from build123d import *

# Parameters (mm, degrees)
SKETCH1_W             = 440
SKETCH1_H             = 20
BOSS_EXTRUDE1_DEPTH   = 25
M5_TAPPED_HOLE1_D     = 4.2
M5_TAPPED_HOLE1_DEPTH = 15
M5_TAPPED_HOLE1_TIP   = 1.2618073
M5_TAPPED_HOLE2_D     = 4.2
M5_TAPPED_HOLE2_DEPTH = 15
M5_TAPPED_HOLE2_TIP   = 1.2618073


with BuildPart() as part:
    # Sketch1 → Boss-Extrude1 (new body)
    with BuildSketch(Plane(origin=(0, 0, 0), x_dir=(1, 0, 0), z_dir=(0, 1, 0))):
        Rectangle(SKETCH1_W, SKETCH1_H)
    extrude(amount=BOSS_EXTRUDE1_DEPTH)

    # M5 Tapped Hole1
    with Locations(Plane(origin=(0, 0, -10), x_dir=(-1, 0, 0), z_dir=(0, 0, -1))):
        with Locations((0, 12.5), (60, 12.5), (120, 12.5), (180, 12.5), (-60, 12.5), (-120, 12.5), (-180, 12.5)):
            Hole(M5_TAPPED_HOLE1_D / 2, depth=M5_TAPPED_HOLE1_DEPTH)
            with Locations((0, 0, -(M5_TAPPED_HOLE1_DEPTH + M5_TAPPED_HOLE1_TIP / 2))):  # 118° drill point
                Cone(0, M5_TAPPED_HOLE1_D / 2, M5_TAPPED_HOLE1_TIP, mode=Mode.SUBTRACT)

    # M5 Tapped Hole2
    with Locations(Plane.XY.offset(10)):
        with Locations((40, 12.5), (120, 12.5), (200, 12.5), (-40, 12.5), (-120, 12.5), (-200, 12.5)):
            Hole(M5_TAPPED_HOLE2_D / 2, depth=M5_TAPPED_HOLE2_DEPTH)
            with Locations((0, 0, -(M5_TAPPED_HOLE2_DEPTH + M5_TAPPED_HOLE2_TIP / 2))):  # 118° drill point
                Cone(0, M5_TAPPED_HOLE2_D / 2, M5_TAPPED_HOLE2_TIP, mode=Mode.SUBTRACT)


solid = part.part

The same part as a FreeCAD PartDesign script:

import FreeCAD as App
import Part
import Sketcher
from FreeCAD import Vector

doc = App.newDocument("Part")
body = doc.addObject("PartDesign::Body", "Body")

# Sketch on XZ plane
sketch1 = body.newObject("Sketcher::SketchObject", "Sketch")
sketch1.AttachmentSupport = (doc.getObject("XZ_Plane"), [""])
sketch1.MapMode = "FlatFace"
sketch1.addGeometry(Part.LineSegment(Vector(-220, -10, 0), Vector(-220, 10, 0)), False)
sketch1.addGeometry(Part.LineSegment(Vector(-220, 10, 0), Vector(220, 10, 0)), False)
sketch1.addGeometry(Part.LineSegment(Vector(220, 10, 0), Vector(220, -10, 0)), False)
sketch1.addGeometry(Part.LineSegment(Vector(220, -10, 0), Vector(-220, -10, 0)), False)
sketch1.addConstraint(Sketcher.Constraint("Coincident", 0, 2, 1, 1))
sketch1.addConstraint(Sketcher.Constraint("Coincident", 1, 2, 2, 1))
sketch1.addConstraint(Sketcher.Constraint("Coincident", 2, 2, 3, 1))
sketch1.addConstraint(Sketcher.Constraint("Coincident", 3, 2, 0, 1))
sketch1.addConstraint(Sketcher.Constraint("Vertical", 0))
sketch1.addConstraint(Sketcher.Constraint("Horizontal", 1))
sketch1.addConstraint(Sketcher.Constraint("Vertical", 2))
sketch1.addConstraint(Sketcher.Constraint("Horizontal", 3))
sketch1.addConstraint(Sketcher.Constraint("Symmetric", 0, 2, 2, 2, -1, 1))
sketch1.addConstraint(Sketcher.Constraint("DistanceX", 1, 1, 1, 2, 440.0))
sketch1.addConstraint(Sketcher.Constraint("DistanceY", 0, 1, 0, 2, 20.0))
pad1 = body.newObject("PartDesign::Pad", "Pad")
pad1.Profile = sketch1
pad1.Length = 25
pad1.Reversed = True

# Sketch on XY plane
sketch2 = body.newObject("Sketcher::SketchObject", "Sketch001")
sketch2.AttachmentSupport = (doc.getObject("XY_Plane"), [""])
sketch2.MapMode = "FlatFace"
sketch2.AttachmentOffset = App.Placement(Vector(0, 0, -10), App.Rotation())
sketch2.addGeometry(Part.Circle(Vector(0, 12.5, 0), Vector(0, 0, 1), 2.1), False)
sketch2.addGeometry(Part.Circle(Vector(-60, 12.5, 0), Vector(0, 0, 1), 2.1), False)
sketch2.addGeometry(Part.Circle(Vector(-120, 12.5, 0), Vector(0, 0, 1), 2.1), False)
sketch2.addGeometry(Part.Circle(Vector(-180, 12.5, 0), Vector(0, 0, 1), 2.1), False)
sketch2.addGeometry(Part.Circle(Vector(60, 12.5, 0), Vector(0, 0, 1), 2.1), False)
sketch2.addGeometry(Part.Circle(Vector(120, 12.5, 0), Vector(0, 0, 1), 2.1), False)
sketch2.addGeometry(Part.Circle(Vector(180, 12.5, 0), Vector(0, 0, 1), 2.1), False)
sketch2.addConstraint(Sketcher.Constraint("Equal", 0, 1))
sketch2.addConstraint(Sketcher.Constraint("Equal", 1, 2))
sketch2.addConstraint(Sketcher.Constraint("Equal", 2, 3))
sketch2.addConstraint(Sketcher.Constraint("Equal", 3, 4))
sketch2.addConstraint(Sketcher.Constraint("Equal", 4, 5))
sketch2.addConstraint(Sketcher.Constraint("Equal", 5, 6))
sketch2.addConstraint(Sketcher.Constraint("Symmetric", 1, 3, 4, 3, -2))
sketch2.addConstraint(Sketcher.Constraint("Symmetric", 2, 3, 5, 3, -2))
sketch2.addConstraint(Sketcher.Constraint("Symmetric", 3, 3, 6, 3, -2))
sketch2.addConstraint(Sketcher.Constraint("PointOnObject", 0, 3, -2))
sketch2.addConstraint(Sketcher.Constraint("Horizontal", 0, 3, 1, 3))
sketch2.addConstraint(Sketcher.Constraint("Horizontal", 1, 3, 2, 3))
sketch2.addConstraint(Sketcher.Constraint("Horizontal", 2, 3, 3, 3))
sketch2.addConstraint(Sketcher.Constraint("Diameter", 0, 4.2))
sketch2.addConstraint(Sketcher.Constraint("DistanceX", 1, 3, -1, 1, 60.0))
sketch2.addConstraint(Sketcher.Constraint("DistanceX", 2, 3, -1, 1, 120.0))
sketch2.addConstraint(Sketcher.Constraint("DistanceX", 3, 3, -1, 1, 180.0))
sketch2.addConstraint(Sketcher.Constraint("DistanceY", -1, 1, 0, 3, 12.5))
doc.recompute()
hole = body.newObject("PartDesign::Hole", "Hole")
hole.Profile = sketch2
hole.ThreadType = "None"
hole.Diameter = 4.2
hole.DepthType = "Dimension"
hole.Depth = 15
hole.DrillPoint = "Angled"
hole.DrillPointAngle = 118
hole.Reversed = True

# Sketch on XY plane
sketch3 = body.newObject("Sketcher::SketchObject", "Sketch002")
sketch3.AttachmentSupport = (doc.getObject("XY_Plane"), [""])
sketch3.MapMode = "FlatFace"
sketch3.AttachmentOffset = App.Placement(Vector(0, 0, 10), App.Rotation())
sketch3.addGeometry(Part.Circle(Vector(40, 12.5, 0), Vector(0, 0, 1), 2.1), False)
sketch3.addGeometry(Part.Circle(Vector(120, 12.5, 0), Vector(0, 0, 1), 2.1), False)
sketch3.addGeometry(Part.Circle(Vector(200, 12.5, 0), Vector(0, 0, 1), 2.1), False)
sketch3.addGeometry(Part.Circle(Vector(-40, 12.5, 0), Vector(0, 0, 1), 2.1), False)
sketch3.addGeometry(Part.Circle(Vector(-120, 12.5, 0), Vector(0, 0, 1), 2.1), False)
sketch3.addGeometry(Part.Circle(Vector(-200, 12.5, 0), Vector(0, 0, 1), 2.1), False)
sketch3.addConstraint(Sketcher.Constraint("Equal", 0, 1))
sketch3.addConstraint(Sketcher.Constraint("Equal", 1, 2))
sketch3.addConstraint(Sketcher.Constraint("Equal", 2, 3))
sketch3.addConstraint(Sketcher.Constraint("Equal", 3, 4))
sketch3.addConstraint(Sketcher.Constraint("Equal", 4, 5))
sketch3.addConstraint(Sketcher.Constraint("Symmetric", 0, 3, 3, 3, -2))
sketch3.addConstraint(Sketcher.Constraint("Symmetric", 1, 3, 4, 3, -2))
sketch3.addConstraint(Sketcher.Constraint("Symmetric", 2, 3, 5, 3, -2))
sketch3.addConstraint(Sketcher.Constraint("Horizontal", 0, 3, 1, 3))
sketch3.addConstraint(Sketcher.Constraint("Horizontal", 1, 3, 2, 3))
sketch3.addConstraint(Sketcher.Constraint("Diameter", 0, 4.2))
sketch3.addConstraint(Sketcher.Constraint("DistanceX", -1, 1, 0, 3, 40.0))
sketch3.addConstraint(Sketcher.Constraint("DistanceX", -1, 1, 1, 3, 120.0))
sketch3.addConstraint(Sketcher.Constraint("DistanceX", -1, 1, 2, 3, 200.0))
sketch3.addConstraint(Sketcher.Constraint("DistanceY", -1, 1, 0, 3, 12.5))
doc.recompute()
hole2 = body.newObject("PartDesign::Hole", "Hole001")
hole2.Profile = sketch3
hole2.ThreadType = "None"
hole2.Diameter = 4.2
hole2.DepthType = "Dimension"
hole2.Depth = 15
hole2.DrillPoint = "Angled"
hole2.DrillPointAngle = 118

doc.recompute()
